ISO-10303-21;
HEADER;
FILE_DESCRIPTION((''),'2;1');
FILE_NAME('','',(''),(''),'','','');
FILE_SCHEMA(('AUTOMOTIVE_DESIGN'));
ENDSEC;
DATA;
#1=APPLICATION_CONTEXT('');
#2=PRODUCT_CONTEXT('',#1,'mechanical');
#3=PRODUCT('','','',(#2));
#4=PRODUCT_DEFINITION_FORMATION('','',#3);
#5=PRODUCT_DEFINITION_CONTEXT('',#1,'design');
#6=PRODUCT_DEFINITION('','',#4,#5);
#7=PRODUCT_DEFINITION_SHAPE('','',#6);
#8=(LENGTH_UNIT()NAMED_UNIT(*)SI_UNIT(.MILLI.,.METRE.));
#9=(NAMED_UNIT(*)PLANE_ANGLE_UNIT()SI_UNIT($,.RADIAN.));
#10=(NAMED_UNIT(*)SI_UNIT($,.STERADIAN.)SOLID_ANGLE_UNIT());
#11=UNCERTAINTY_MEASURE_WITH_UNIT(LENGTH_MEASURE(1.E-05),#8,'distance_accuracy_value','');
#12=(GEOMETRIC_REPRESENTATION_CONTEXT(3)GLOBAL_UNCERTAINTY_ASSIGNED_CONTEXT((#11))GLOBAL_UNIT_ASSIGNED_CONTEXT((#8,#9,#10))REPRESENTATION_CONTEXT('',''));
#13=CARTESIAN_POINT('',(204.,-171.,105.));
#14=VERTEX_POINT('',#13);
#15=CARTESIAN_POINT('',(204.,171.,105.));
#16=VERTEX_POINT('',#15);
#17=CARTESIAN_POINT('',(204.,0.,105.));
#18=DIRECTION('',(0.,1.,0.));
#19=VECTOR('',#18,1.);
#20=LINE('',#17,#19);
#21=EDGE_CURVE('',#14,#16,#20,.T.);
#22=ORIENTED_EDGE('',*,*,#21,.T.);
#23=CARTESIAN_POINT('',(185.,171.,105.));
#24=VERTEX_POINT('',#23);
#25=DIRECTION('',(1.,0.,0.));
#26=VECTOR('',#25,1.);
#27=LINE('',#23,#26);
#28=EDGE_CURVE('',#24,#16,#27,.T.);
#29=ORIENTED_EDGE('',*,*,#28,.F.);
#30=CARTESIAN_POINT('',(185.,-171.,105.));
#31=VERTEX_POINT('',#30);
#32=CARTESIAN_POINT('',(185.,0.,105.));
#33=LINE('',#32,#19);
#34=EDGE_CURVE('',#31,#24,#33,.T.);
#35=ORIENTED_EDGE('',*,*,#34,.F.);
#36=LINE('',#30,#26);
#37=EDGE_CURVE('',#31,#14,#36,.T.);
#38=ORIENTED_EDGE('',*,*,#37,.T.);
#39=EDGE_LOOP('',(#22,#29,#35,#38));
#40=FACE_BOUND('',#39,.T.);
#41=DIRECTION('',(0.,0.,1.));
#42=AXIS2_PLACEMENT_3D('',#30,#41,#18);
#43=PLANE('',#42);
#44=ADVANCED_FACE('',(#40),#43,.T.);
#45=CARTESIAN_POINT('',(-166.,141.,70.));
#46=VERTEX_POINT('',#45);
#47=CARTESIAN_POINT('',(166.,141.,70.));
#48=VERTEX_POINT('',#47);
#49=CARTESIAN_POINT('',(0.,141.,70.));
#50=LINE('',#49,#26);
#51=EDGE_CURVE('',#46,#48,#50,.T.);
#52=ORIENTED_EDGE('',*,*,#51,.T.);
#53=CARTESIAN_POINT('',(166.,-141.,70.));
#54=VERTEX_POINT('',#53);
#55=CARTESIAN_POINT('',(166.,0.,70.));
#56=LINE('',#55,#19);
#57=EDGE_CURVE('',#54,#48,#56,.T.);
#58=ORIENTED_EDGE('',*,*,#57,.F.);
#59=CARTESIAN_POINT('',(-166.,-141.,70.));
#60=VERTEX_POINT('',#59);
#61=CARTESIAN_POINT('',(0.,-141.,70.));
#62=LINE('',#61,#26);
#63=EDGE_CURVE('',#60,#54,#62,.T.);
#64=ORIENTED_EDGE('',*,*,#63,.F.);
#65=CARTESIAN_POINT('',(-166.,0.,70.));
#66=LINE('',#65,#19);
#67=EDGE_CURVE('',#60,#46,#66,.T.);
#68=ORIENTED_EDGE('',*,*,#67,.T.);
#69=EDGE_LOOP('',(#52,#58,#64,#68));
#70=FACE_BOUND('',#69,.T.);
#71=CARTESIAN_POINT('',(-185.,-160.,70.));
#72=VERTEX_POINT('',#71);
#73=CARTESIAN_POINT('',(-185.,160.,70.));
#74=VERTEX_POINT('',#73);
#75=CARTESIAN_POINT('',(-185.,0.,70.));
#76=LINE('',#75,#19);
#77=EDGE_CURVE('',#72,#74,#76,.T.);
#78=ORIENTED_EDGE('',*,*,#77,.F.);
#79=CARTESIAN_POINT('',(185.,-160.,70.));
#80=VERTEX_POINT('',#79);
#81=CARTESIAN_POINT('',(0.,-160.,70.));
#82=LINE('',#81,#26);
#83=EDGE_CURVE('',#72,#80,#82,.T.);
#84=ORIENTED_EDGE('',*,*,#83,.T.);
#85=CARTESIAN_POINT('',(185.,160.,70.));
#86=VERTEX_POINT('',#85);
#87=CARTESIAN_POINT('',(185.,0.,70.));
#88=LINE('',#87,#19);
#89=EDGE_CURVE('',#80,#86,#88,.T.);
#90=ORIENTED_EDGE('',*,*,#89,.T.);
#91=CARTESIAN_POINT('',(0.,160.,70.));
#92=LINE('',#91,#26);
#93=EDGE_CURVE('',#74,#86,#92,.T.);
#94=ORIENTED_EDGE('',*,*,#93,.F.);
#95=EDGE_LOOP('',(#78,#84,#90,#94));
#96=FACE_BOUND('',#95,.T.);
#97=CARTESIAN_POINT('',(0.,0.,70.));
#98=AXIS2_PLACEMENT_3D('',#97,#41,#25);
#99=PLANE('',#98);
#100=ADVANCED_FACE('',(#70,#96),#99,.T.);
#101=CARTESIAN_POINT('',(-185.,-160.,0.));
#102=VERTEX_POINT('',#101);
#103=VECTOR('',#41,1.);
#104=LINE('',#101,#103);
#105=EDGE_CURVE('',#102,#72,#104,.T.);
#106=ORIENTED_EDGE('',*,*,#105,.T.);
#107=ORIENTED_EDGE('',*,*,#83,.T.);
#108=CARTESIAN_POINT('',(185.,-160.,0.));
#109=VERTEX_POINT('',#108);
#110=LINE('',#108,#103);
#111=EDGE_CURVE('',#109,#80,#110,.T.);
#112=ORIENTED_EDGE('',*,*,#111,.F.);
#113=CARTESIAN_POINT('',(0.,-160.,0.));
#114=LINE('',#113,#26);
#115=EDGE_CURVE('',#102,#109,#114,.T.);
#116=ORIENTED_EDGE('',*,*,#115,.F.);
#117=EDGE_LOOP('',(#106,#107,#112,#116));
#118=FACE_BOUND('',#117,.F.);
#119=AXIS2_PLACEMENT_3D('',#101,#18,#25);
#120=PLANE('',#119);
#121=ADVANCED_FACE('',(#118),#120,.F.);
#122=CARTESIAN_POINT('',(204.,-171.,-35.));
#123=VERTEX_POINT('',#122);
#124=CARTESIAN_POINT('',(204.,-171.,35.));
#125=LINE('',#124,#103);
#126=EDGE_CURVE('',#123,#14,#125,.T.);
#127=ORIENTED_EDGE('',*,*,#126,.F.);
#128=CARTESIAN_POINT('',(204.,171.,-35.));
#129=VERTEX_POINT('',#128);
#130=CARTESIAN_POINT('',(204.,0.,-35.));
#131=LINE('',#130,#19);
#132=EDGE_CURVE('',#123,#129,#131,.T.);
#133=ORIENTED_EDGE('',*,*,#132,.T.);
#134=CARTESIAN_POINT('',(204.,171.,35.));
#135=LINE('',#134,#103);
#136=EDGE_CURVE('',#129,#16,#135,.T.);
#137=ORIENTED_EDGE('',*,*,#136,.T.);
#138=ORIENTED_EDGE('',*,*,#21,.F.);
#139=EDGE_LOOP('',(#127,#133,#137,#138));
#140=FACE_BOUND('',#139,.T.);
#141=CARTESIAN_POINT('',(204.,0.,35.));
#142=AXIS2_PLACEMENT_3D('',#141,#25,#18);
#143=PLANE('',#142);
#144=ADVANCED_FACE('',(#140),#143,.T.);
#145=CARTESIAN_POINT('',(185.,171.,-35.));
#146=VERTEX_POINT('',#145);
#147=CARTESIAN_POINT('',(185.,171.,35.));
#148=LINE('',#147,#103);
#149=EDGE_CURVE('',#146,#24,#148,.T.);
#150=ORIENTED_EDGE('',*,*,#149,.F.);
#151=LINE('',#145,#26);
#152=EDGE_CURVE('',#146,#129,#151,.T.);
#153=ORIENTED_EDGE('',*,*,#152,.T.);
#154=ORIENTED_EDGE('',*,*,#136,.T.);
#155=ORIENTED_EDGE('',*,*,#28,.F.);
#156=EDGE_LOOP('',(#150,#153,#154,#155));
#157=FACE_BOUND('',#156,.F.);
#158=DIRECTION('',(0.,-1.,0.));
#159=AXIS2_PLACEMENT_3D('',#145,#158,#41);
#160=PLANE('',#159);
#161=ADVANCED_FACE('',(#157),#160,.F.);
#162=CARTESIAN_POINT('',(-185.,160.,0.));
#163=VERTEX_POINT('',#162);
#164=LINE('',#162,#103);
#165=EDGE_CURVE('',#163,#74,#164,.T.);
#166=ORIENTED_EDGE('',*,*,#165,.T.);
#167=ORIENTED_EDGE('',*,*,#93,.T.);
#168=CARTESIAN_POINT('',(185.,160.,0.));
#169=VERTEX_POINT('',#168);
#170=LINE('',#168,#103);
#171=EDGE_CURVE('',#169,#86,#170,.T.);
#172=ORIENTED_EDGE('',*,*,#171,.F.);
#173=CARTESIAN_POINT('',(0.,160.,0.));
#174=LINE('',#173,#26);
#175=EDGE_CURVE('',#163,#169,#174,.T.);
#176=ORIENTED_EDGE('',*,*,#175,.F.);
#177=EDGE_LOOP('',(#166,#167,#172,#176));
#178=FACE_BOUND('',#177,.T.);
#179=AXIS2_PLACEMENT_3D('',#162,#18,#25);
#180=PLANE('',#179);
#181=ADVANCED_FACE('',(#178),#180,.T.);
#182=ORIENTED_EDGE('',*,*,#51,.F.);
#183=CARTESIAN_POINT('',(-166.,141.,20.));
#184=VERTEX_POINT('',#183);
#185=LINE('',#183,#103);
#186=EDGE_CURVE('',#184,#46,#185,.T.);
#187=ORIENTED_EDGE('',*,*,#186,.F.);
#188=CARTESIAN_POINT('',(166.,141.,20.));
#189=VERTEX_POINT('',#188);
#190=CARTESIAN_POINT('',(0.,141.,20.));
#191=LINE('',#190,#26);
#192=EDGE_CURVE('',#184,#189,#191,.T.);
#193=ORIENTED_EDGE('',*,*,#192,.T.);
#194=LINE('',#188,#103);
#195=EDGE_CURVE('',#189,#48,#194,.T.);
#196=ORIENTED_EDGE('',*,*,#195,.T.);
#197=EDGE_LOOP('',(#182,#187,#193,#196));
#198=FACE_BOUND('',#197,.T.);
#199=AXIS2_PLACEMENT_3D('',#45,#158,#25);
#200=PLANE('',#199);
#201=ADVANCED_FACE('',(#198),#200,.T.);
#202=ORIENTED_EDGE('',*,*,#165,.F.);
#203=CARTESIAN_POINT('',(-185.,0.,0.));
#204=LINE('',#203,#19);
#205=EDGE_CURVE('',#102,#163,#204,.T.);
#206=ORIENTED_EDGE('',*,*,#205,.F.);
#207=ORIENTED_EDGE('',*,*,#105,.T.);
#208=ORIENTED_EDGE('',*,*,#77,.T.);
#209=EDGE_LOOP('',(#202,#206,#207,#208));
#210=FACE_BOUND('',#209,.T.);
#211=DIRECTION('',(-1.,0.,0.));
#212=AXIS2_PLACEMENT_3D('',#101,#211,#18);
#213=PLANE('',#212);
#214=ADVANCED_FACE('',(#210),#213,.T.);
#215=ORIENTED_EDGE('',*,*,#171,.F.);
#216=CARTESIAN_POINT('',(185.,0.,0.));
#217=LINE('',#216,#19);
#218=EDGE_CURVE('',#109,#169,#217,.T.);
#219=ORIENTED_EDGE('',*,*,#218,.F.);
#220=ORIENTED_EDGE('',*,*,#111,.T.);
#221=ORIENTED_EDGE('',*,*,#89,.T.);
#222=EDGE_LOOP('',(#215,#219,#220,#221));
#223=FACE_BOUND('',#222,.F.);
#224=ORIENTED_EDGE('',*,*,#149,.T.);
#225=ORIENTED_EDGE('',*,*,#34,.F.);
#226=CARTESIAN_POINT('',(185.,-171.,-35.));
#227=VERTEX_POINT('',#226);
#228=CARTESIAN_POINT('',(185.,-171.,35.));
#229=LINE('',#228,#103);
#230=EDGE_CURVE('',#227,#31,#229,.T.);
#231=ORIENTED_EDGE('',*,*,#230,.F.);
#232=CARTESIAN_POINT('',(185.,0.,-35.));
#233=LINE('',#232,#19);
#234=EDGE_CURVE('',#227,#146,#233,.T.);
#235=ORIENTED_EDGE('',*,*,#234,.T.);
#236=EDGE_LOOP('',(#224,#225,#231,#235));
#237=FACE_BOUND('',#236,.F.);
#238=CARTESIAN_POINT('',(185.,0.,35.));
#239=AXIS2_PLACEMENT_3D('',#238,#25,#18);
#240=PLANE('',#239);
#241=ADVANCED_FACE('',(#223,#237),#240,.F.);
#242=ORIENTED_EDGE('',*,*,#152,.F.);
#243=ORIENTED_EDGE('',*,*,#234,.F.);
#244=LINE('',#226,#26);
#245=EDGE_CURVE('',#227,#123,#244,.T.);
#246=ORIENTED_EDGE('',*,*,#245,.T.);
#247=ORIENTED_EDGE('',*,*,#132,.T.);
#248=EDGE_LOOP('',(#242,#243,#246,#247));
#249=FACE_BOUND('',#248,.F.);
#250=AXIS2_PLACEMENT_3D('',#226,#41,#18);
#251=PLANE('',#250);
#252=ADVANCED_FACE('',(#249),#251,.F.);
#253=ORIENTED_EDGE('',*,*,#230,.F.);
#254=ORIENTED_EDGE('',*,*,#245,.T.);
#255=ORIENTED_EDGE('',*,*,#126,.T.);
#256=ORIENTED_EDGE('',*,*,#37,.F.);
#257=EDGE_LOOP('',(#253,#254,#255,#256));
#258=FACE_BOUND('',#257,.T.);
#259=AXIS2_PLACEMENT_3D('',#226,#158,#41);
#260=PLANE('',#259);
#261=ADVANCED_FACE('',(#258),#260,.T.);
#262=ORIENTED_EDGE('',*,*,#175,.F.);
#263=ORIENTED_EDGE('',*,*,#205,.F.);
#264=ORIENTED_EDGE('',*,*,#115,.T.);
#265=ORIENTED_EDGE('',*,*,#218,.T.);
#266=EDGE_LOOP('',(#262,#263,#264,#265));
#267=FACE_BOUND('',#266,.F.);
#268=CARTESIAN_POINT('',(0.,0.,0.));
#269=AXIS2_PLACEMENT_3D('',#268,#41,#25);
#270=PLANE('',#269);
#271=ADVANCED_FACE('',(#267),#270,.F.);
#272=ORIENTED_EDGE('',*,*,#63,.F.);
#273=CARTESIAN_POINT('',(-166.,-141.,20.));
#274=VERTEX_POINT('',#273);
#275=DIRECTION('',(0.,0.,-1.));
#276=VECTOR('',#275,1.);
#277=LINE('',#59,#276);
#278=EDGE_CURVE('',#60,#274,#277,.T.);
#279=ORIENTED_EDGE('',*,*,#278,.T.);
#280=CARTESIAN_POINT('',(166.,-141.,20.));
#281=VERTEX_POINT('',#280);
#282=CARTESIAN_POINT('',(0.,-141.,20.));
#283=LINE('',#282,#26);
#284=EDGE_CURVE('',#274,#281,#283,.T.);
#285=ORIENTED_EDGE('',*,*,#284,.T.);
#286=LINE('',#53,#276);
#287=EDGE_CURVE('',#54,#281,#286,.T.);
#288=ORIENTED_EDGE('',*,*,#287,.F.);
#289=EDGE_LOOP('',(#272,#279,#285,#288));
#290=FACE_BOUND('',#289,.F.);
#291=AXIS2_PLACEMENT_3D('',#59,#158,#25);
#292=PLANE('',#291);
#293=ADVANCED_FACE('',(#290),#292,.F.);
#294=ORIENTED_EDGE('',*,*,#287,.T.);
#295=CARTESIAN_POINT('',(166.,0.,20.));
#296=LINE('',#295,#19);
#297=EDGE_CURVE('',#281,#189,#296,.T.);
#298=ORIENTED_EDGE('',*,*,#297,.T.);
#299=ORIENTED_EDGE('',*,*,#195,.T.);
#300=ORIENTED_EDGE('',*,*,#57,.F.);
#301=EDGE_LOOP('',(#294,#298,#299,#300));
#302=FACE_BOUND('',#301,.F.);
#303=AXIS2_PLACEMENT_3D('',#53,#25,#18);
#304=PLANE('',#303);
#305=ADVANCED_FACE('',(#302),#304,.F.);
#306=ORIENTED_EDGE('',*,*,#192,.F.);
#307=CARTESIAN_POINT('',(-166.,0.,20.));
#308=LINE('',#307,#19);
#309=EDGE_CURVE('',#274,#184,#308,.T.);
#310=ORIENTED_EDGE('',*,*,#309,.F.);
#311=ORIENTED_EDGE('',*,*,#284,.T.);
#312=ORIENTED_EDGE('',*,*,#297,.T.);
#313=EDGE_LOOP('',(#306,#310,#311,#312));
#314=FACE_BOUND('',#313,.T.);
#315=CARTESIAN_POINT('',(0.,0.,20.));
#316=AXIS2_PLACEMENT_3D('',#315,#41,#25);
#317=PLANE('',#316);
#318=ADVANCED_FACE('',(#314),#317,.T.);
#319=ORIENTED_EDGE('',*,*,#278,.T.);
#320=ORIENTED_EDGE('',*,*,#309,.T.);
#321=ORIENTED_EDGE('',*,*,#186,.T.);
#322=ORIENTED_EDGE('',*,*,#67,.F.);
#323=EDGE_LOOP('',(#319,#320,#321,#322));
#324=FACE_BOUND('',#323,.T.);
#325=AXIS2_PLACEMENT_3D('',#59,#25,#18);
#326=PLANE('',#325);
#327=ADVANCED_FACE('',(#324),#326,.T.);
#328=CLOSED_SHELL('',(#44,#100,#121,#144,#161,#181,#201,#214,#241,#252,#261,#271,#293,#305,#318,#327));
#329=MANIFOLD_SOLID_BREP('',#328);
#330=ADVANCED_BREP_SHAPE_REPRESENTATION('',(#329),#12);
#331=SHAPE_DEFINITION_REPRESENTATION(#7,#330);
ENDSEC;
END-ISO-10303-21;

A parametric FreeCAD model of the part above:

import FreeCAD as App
import Part
import Sketcher

V = App.Vector
Q = App.Units.Quantity

doc = App.newDocument("Part")
body = doc.addObject("PartDesign::Body", "Body")

sketch1 = body.newObject("Sketcher::SketchObject", "Sketch")
sketch1.AttachmentSupport = (doc.getObject("XY_Plane"), [""])
sketch1.MapMode = "FlatFace"
sketch1.addGeometry(Part.LineSegment(V(-185, 160, 0), V(-185, -160, 0)), False)
sketch1.addGeometry(Part.LineSegment(V(-185, -160, 0), V(185, -160, 0)), False)
sketch1.addGeometry(Part.LineSegment(V(185, -160, 0), V(185, 160, 0)), False)
sketch1.addGeometry(Part.LineSegment(V(185, 160, 0), V(-185, 160, 0)), False)
sketch1.addConstraint(Sketcher.Constraint("Coincident", 0, 2, 1, 1))
sketch1.addConstraint(Sketcher.Constraint("Coincident", 1, 2, 2, 1))
sketch1.addConstraint(Sketcher.Constraint("Coincident", 2, 2, 3, 1))
sketch1.addConstraint(Sketcher.Constraint("Coincident", 3, 2, 0, 1))
sketch1.addConstraint(Sketcher.Constraint("Vertical", 0))
sketch1.addConstraint(Sketcher.Constraint("Horizontal", 1))
sketch1.addConstraint(Sketcher.Constraint("Vertical", 2))
sketch1.addConstraint(Sketcher.Constraint("Horizontal", 3))
sketch1.addConstraint(Sketcher.Constraint("Symmetric", 0, 2, 2, 2, -1, 1))
sketch1.addConstraint(Sketcher.Constraint("DistanceX", 1, 1, 1, 2, Q("370 mm")))
sketch1.addConstraint(Sketcher.Constraint("DistanceY", 0, 2, 0, 1, Q("320 mm")))
pad1 = body.newObject("PartDesign::Pad", "Pad")
pad1.Profile = sketch1
pad1.Length = 70

sketch2 = body.newObject("Sketcher::SketchObject", "Sketch001")
sketch2.AttachmentSupport = (doc.getObject("XY_Plane"), [""])
sketch2.MapMode = "FlatFace"
sketch2.AttachmentOffset = App.Placement(V(0, 0, 70), App.Rotation())
sketch2.addGeometry(Part.LineSegment(V(-166, 141, 0), V(-166, -141, 0)), False)
sketch2.addGeometry(Part.LineSegment(V(-166, -141, 0), V(166, -141, 0)), False)
sketch2.addGeometry(Part.LineSegment(V(166, -141, 0), V(166, 141, 0)), False)
sketch2.addGeometry(Part.LineSegment(V(166, 141, 0), V(-166, 141, 0)), False)
sketch2.addConstraint(Sketcher.Constraint("Coincident", 0, 2, 1, 1))
sketch2.addConstraint(Sketcher.Constraint("Coincident", 1, 2, 2, 1))
sketch2.addConstraint(Sketcher.Constraint("Coincident", 2, 2, 3, 1))
sketch2.addConstraint(Sketcher.Constraint("Coincident", 3, 2, 0, 1))
sketch2.addConstraint(Sketcher.Constraint("Vertical", 0))
sketch2.addConstraint(Sketcher.Constraint("Horizontal", 1))
sketch2.addConstraint(Sketcher.Constraint("Vertical", 2))
sketch2.addConstraint(Sketcher.Constraint("Horizontal", 3))
sketch2.addConstraint(Sketcher.Constraint("Symmetric", 0, 2, 2, 2, -1, 1))
sketch2.addConstraint(Sketcher.Constraint("DistanceX", 1, 1, 1, 2, Q("332 mm")))
sketch2.addConstraint(Sketcher.Constraint("DistanceY", 0, 2, 0, 1, Q("282 mm")))
pocket1 = body.newObject("PartDesign::Pocket", "Pocket")
pocket1.Profile = sketch2
pocket1.Length = 25

sketch3 = body.newObject("Sketcher::SketchObject", "Sketch002")
sketch3.AttachmentSupport = (doc.getObject("XY_Plane"), [""])
sketch3.MapMode = "FlatFace"
sketch3.AttachmentOffset = App.Placement(V(0, 0, 45), App.Rotation())
sketch3.addGeometry(Part.LineSegment(V(-166, 141, 0), V(-166, -141, 0)), False)
sketch3.addGeometry(Part.LineSegment(V(-166, -141, 0), V(166, -141, 0)), False)
sketch3.addGeometry(Part.LineSegment(V(166, -141, 0), V(166, 141, 0)), False)
sketch3.addGeometry(Part.LineSegment(V(166, 141, 0), V(-166, 141, 0)), False)
sketch3.addConstraint(Sketcher.Constraint("Coincident", 0, 2, 1, 1))
sketch3.addConstraint(Sketcher.Constraint("Coincident", 1, 2, 2, 1))
sketch3.addConstraint(Sketcher.Constraint("Coincident", 2, 2, 3, 1))
sketch3.addConstraint(Sketcher.Constraint("Coincident", 3, 2, 0, 1))
sketch3.addConstraint(Sketcher.Constraint("Vertical", 0))
sketch3.addConstraint(Sketcher.Constraint("Horizontal", 1))
sketch3.addConstraint(Sketcher.Constraint("Vertical", 2))
sketch3.addConstraint(Sketcher.Constraint("Horizontal", 3))
sketch3.addConstraint(Sketcher.Constraint("Symmetric", 0, 2, 2, 2, -1, 1))
sketch3.addConstraint(Sketcher.Constraint("DistanceX", 1, 1, 1, 2, Q("332 mm")))
sketch3.addConstraint(Sketcher.Constraint("DistanceY", 0, 2, 0, 1, Q("282 mm")))
pad2 = body.newObject("PartDesign::Pad", "Pad001")
pad2.Profile = sketch3
pad2.Length = 11
pad2.Reversed = True

sketch4 = body.newObject("Sketcher::SketchObject", "Sketch003")
sketch4.AttachmentSupport = (doc.getObject("XY_Plane"), [""])
sketch4.MapMode = "FlatFace"
sketch4.AttachmentOffset = App.Placement(V(0, 0, 45), App.Rotation())
sketch4.addGeometry(Part.LineSegment(V(-166, 141, 0), V(-166, -141, 0)), False)
sketch4.addGeometry(Part.LineSegment(V(-166, -141, 0), V(166, -141, 0)), False)
sketch4.addGeometry(Part.LineSegment(V(166, -141, 0), V(166, 141, 0)), False)
sketch4.addGeometry(Part.LineSegment(V(166, 141, 0), V(-166, 141, 0)), False)
sketch4.addConstraint(Sketcher.Constraint("Coincident", 0, 2, 1, 1))
sketch4.addConstraint(Sketcher.Constraint("Coincident", 1, 2, 2, 1))
sketch4.addConstraint(Sketcher.Constraint("Coincident", 2, 2, 3, 1))
sketch4.addConstraint(Sketcher.Constraint("Coincident", 3, 2, 0, 1))
sketch4.addConstraint(Sketcher.Constraint("Vertical", 0))
sketch4.addConstraint(Sketcher.Constraint("Horizontal", 1))
sketch4.addConstraint(Sketcher.Constraint("Vertical", 2))
sketch4.addConstraint(Sketcher.Constraint("Horizontal", 3))
sketch4.addConstraint(Sketcher.Constraint("Symmetric", 0, 2, 2, 2, -1, 1))
sketch4.addConstraint(Sketcher.Constraint("DistanceX", 1, 1, 1, 2, Q("332 mm")))
sketch4.addConstraint(Sketcher.Constraint("DistanceY", 0, 2, 0, 1, Q("282 mm")))
pocket2 = body.newObject("PartDesign::Pocket", "Pocket001")
pocket2.Profile = sketch4
pocket2.Length = 25

sketch5 = body.newObject("Sketcher::SketchObject", "Sketch004")
sketch5.AttachmentSupport = (doc.getObject("YZ_Plane"), [""])
sketch5.MapMode = "FlatFace"
sketch5.AttachmentOffset = App.Placement(V(0, 0, 185), App.Rotation())
sketch5.addGeometry(Part.LineSegment(V(-171, 105, 0), V(-171, -35, 0)), False)
sketch5.addGeometry(Part.LineSegment(V(-171, -35, 0), V(171, -35, 0)), False)
sketch5.addGeometry(Part.LineSegment(V(171, -35, 0), V(171, 105, 0)), False)
sketch5.addGeometry(Part.LineSegment(V(171, 105, 0), V(-171, 105, 0)), False)
sketch5.addConstraint(Sketcher.Constraint("Coincident", 0, 2, 1, 1))
sketch5.addConstraint(Sketcher.Constraint("Coincident", 1, 2, 2, 1))
sketch5.addConstraint(Sketcher.Constraint("Coincident", 2, 2, 3, 1))
sketch5.addConstraint(Sketcher.Constraint("Coincident", 3, 2, 0, 1))
sketch5.addConstraint(Sketcher.Constraint("Vertical", 0))
sketch5.addConstraint(Sketcher.Constraint("Horizontal", 1))
sketch5.addConstraint(Sketcher.Constraint("Vertical", 2))
sketch5.addConstraint(Sketcher.Constraint("Horizontal", 3))
sketch5.addConstraint(Sketcher.Constraint("DistanceX", 1, 1, 1, 2, Q("342 mm")))
sketch5.addConstraint(Sketcher.Constraint("DistanceY", 0, 2, 0, 1, Q("140 mm")))
sketch5.addConstraint(Sketcher.Constraint("DistanceX", 0, 2, -1, 1, Q("171 mm")))
sketch5.addConstraint(Sketcher.Constraint("DistanceY", 0, 2, -1, 1, Q("35 mm")))
pad3 = body.newObject("PartDesign::Pad", "Pad002")
pad3.Profile = sketch5
pad3.Length = 19

doc.recompute()
